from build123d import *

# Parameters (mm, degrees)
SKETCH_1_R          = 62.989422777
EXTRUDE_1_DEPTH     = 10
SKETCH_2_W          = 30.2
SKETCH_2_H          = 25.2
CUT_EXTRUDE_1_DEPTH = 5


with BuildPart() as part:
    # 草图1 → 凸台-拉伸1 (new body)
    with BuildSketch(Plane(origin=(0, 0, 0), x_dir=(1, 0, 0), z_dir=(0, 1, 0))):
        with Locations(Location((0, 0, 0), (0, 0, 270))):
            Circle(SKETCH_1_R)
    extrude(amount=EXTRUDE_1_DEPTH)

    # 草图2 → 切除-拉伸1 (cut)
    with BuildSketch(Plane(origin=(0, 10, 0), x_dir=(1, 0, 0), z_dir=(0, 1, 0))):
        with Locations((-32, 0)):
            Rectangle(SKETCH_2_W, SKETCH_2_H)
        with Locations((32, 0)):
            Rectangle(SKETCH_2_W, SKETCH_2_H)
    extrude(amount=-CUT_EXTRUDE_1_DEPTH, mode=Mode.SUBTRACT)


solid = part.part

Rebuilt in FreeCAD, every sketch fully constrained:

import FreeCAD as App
import Part
import Sketcher
from FreeCAD import Vector

doc = App.newDocument("Part")
body = doc.addObject("PartDesign::Body", "Body")

sketch1 = body.newObject("Sketcher::SketchObject", "Sketch")
sketch1.AttachmentSupport = (doc.getObject("XZ_Plane"), [""])
sketch1.MapMode = "FlatFace"
sketch1.addGeometry(Part.Circle(Vector(0, 0, 0), Vector(0, 0, 1), 62.989423), False)
sketch1.addConstraint([
    Sketcher.Constraint("Coincident", 0, 3, -1, 1),
    Sketcher.Constraint("Diameter", 0, 125.978846),
])
pad1 = body.newObject("PartDesign::Pad", "Pad")
pad1.Profile = sketch1
pad1.Length = 10
pad1.Reversed = True

sketch2 = body.newObject("Sketcher::SketchObject", "Sketch001")
sketch2.AttachmentSupport = (doc.getObject("XZ_Plane"), [""])
sketch2.MapMode = "FlatFace"
sketch2.AttachmentOffset = App.Placement(Vector(0, 0, -10), App.Rotation())
sketch2.addGeometry([
    Part.LineSegment(Vector(-47.1, -12.6, 0), Vector(-47.1, 12.6, 0)),
    Part.LineSegment(Vector(-47.1, 12.6, 0), Vector(-16.9, 12.6, 0)),
    Part.LineSegment(Vector(-16.9, 12.6, 0), Vector(-16.9, -12.6, 0)),
    Part.LineSegment(Vector(-16.9, -12.6, 0), Vector(-47.1, -12.6, 0)),
    Part.LineSegment(Vector(16.9, -12.6, 0), Vector(16.9, 12.6, 0)),
    Part.LineSegment(Vector(16.9, 12.6, 0), Vector(47.1, 12.6, 0)),
    Part.LineSegment(Vector(47.1, 12.6, 0), Vector(47.1, -12.6, 0)),
    Part.LineSegment(Vector(47.1, -12.6, 0), Vector(16.9, -12.6, 0)),
], False)
sketch2.addConstraint([
    Sketcher.Constraint("Coincident", 0, 2, 1, 1),
    Sketcher.Constraint("Coincident", 1, 2, 2, 1),
    Sketcher.Constraint("Coincident", 2, 2, 3, 1),
    Sketcher.Constraint("Coincident", 3, 2, 0, 1),
    Sketcher.Constraint("Coincident", 4, 2, 5, 1),
    Sketcher.Constraint("Coincident", 5, 2, 6, 1),
    Sketcher.Constraint("Coincident", 6, 2, 7, 1),
    Sketcher.Constraint("Coincident", 7, 2, 4, 1),
    Sketcher.Constraint("Vertical", 0),
    Sketcher.Constraint("Horizontal", 1),
    Sketcher.Constraint("Vertical", 2),
    Sketcher.Constraint("Horizontal", 3),
    Sketcher.Constraint("Vertical", 4),
    Sketcher.Constraint("Horizontal", 5),
    Sketcher.Constraint("Vertical", 6),
    Sketcher.Constraint("Horizontal", 7),
    Sketcher.Constraint("Symmetric", 2, 2, 4, 2, -1, 1),
    Sketcher.Constraint("Symmetric", 0, 2, 6, 2, -1, 1),
    Sketcher.Constraint("Horizontal", 1, 2, 4, 2),
    Sketcher.Constraint("DistanceX", 1, 1, 1, 2, 30.2),
    Sketcher.Constraint("DistanceY", 0, 1, 0, 2, 25.2),
    Sketcher.Constraint("DistanceX", 0, 2, 4, 2, 64.0),
])
pocket1 = body.newObject("PartDesign::Pocket", "Pocket")
pocket1.Profile = sketch2
pocket1.Length = 5
pocket1.Reversed = True

doc.recompute()
